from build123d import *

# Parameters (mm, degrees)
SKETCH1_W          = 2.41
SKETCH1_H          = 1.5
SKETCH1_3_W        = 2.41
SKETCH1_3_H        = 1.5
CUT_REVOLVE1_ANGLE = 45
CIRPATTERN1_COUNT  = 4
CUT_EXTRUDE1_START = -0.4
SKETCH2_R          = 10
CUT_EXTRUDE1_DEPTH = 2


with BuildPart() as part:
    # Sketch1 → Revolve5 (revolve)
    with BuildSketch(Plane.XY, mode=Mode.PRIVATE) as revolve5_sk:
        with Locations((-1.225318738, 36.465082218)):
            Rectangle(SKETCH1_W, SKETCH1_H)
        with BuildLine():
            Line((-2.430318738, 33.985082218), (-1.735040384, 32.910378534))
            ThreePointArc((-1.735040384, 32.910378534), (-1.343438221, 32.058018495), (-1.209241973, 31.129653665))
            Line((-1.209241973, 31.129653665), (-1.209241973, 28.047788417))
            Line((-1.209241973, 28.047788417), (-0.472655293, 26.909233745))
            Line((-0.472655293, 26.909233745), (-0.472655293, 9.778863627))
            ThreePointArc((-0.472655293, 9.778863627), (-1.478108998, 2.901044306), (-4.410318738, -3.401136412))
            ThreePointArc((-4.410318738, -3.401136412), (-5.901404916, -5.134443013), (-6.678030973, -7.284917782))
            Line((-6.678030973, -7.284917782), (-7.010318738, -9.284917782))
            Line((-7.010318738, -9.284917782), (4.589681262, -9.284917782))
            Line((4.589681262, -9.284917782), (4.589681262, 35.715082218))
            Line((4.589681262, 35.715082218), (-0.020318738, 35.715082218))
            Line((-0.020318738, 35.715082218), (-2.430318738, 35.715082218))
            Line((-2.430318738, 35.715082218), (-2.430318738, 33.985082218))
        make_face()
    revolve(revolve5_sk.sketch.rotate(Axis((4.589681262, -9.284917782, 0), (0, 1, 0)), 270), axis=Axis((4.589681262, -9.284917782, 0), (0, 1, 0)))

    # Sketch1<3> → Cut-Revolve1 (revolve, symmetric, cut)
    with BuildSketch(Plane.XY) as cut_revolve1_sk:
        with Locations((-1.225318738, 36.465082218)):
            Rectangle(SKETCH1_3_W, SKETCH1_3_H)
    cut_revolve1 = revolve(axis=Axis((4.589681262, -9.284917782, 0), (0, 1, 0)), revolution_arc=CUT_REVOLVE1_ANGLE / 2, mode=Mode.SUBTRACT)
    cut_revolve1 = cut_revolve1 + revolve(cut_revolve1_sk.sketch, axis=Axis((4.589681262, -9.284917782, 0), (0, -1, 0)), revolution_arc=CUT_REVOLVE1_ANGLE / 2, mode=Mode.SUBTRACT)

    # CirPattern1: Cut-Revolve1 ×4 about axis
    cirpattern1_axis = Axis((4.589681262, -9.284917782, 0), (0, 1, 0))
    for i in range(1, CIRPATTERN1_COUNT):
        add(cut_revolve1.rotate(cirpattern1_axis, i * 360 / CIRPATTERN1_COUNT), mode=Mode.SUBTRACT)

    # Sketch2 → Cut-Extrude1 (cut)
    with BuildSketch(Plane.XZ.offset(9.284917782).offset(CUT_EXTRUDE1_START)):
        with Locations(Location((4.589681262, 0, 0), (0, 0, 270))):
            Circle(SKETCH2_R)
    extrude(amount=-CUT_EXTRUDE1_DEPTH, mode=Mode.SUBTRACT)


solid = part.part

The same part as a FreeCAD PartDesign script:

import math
import FreeCAD as App
import Part
import Sketcher

V = App.Vector

doc = App.newDocument("Part")
body = doc.addObject("PartDesign::Body", "Body")

sketch1 = doc.addObject("Sketcher::SketchObject", "Sketch")
body.addObject(sketch1)
sketch1.AttachmentSupport = (doc.XY_Plane, [""])
sketch1.MapMode = "FlatFace"
sketch1.addGeometry([
    Part.LineSegment(V(-2.430319, 37.215082, 0), V(-2.430319, 33.985082, 0)),
    Part.LineSegment(V(-2.430319, 33.985082, 0), V(-1.73504, 32.910379, 0)),
    Part.ArcOfCircle(Part.Circle(V(-4.487537, 31.129654, 0), V(0, 0, 1), 3.278295), math.radians(0), math.radians(32.900803)),
    Part.LineSegment(V(-1.209242, 31.129654, 0), V(-1.209242, 28.047788, 0)),
    Part.LineSegment(V(-1.209242, 28.047788, 0), V(-0.472655, 26.909234, 0)),
    Part.LineSegment(V(-0.472655, 26.909234, 0), V(-0.472655, 9.778864, 0)),
    Part.ArcOfCircle(Part.Circle(V(-24.499289, 9.778864, 0), V(0, 0, 1), 24.026634), math.radians(-33.268136), math.radians(0)),
    Part.ArcOfCircle(Part.Circle(V(-0.444763, -8.320537, 0), V(0, 0, 1), 6.318713), math.radians(128.872474), math.radians(170.566824)),
    Part.LineSegment(V(-6.678031, -7.284918, 0), V(-7.010319, -9.284918, 0)),
    Part.LineSegment(V(-7.010319, -9.284918, 0), V(4.589681, -9.284918, 0)),
    Part.LineSegment(V(4.589681, -9.284918, 0), V(4.589681, 35.715082, 0)),
    Part.LineSegment(V(4.589681, 35.715082, 0), V(-0.020319, 35.715082, 0)),
    Part.LineSegment(V(-0.020319, 35.715082, 0), V(-0.020319, 37.215082, 0)),
    Part.LineSegment(V(-0.020319, 37.215082, 0), V(-2.430319, 37.215082, 0)),
], False)
sketch1.addGeometry(Part.LineSegment(V(4.589681, -9.284918, 0), V(4.589681, 37.215082, 0)), True)
sketch1.addConstraint([
    Sketcher.Constraint("Coincident", 0, 2, 1, 1),
    Sketcher.Constraint("Tangent", 1, 2, 2, 2),
    Sketcher.Constraint("Tangent", 2, 1, 3, 1),
    Sketcher.Constraint("Coincident", 3, 2, 4, 1),
    Sketcher.Constraint("Coincident", 4, 2, 5, 1),
    Sketcher.Constraint("Tangent", 5, 2, 6, 2),
    Sketcher.Constraint("Coincident", 6, 1, 7, 1),
    Sketcher.Constraint("Tangent", 7, 2, 8, 1),
    Sketcher.Constraint("Coincident", 8, 2, 9, 1),
    Sketcher.Constraint("Coincident", 9, 2, 10, 1),
    Sketcher.Constraint("Coincident", 10, 2, 11, 1),
    Sketcher.Constraint("Coincident", 11, 2, 12, 1),
    Sketcher.Constraint("Coincident", 12, 2, 13, 1),
    Sketcher.Constraint("Coincident", 13, 2, 0, 1),
    Sketcher.Constraint("Vertical", 0),
    Sketcher.Constraint("Vertical", 3),
    Sketcher.Constraint("Vertical", 5),
    Sketcher.Constraint("Horizontal", 9),
    Sketcher.Constraint("Vertical", 10),
    Sketcher.Constraint("Horizontal", 11),
    Sketcher.Constraint("Vertical", 12),
    Sketcher.Constraint("Horizontal", 13),
    Sketcher.Constraint("Vertical", 14),
    Sketcher.Constraint("Coincident", 14, 1, 9, 2),
    Sketcher.Constraint("Parallel", 1, 4),
    Sketcher.Constraint("Horizontal", 13, 2, 14, 2),
    Sketcher.Constraint("DistanceY", 10, 1, 10, 2, 45.0),
    Sketcher.Constraint("DistanceX", 9, 1, 9, 2, 11.6),
    Sketcher.Constraint("DistanceY", 12, 1, 12, 2, 1.5),
    Sketcher.Constraint("DistanceY", 8, 2, 7, 2, 2.0),
    Sketcher.Constraint("DistanceX", 6, 1, 9, 2, 9.0),
    Sketcher.Constraint("DistanceX", 11, 2, 11, 1, 4.61),
    Sketcher.Constraint("DistanceX", 13, 2, 13, 1, 2.41),
    Sketcher.Constraint("DistanceY", 0, 2, 0, 1, 3.23),
    Sketcher.Constraint("Distance", 1, 1.28),
    Sketcher.Constraint("DistanceY", 6, 1, 5, 2, 13.18),
    Sketcher.Constraint("Radius", 2, 3.278295),
    Sketcher.Constraint("Radius", 6, 24.026634),
    Sketcher.Constraint("Radius", 7, 6.318713),
    Sketcher.Constraint("DistanceY", 5, 2, 5, 1, 17.13037),
    Sketcher.Constraint("DistanceY", 7, 3, 6, 3, 18.099401),
    Sketcher.Constraint("DistanceX", 1, 2, 2, 1, 0.525798),
    Sketcher.Constraint("DistanceX", 6, 3, -1, 1, 24.499289),
    Sketcher.Constraint("DistanceY", -1, 1, 1, 2, 32.910379),
])
revolution = doc.addObject("PartDesign::Revolution", "Revolution")
body.addObject(revolution)
revolution.Profile = sketch1
revolution.ReferenceAxis = (sketch1, ["Axis0"])
revolution.Angle = 360

sketch2 = doc.addObject("Sketcher::SketchObject", "Sketch001")
body.addObject(sketch2)
sketch2.AttachmentSupport = (doc.XY_Plane, [""])
sketch2.MapMode = "FlatFace"
sketch2.addGeometry([
    Part.LineSegment(V(-2.430319, 37.215082, 0), V(-2.430319, 35.715082, 0)),
    Part.LineSegment(V(-2.430319, 35.715082, 0), V(-0.020319, 35.715082, 0)),
    Part.LineSegment(V(-0.020319, 35.715082, 0), V(-0.020319, 37.215082, 0)),
    Part.LineSegment(V(-0.020319, 37.215082, 0), V(-2.430319, 37.215082, 0)),
], False)
sketch2.addGeometry(Part.LineSegment(V(4.589681, 35.715082, 0), V(4.589681, 37.215082, 0)), True)
sketch2.addConstraint([
    Sketcher.Constraint("Coincident", 0, 2, 1, 1),
    Sketcher.Constraint("Coincident", 1, 2, 2, 1),
    Sketcher.Constraint("Coincident", 2, 2, 3, 1),
    Sketcher.Constraint("Coincident", 3, 2, 0, 1),
    Sketcher.Constraint("Vertical", 0),
    Sketcher.Constraint("Horizontal", 1),
    Sketcher.Constraint("Vertical", 2),
    Sketcher.Constraint("Horizontal", 3),
    Sketcher.Constraint("Vertical", 4),
    Sketcher.Constraint("Horizontal", 1, 2, 4, 1),
    Sketcher.Constraint("Horizontal", 3, 2, 4, 2),
    Sketcher.Constraint("DistanceY", 0, 2, 0, 1, 1.5),
    Sketcher.Constraint("DistanceX", 1, 1, 1, 2, 2.41),
    Sketcher.Constraint("DistanceX", 1, 2, 4, 1, 4.61),
    Sketcher.Constraint("DistanceX", 0, 2, -1, 1, 2.430319),
    Sketcher.Constraint("DistanceY", -1, 1, 0, 2, 35.715082),
])
groove = doc.addObject("PartDesign::Groove", "Groove")
body.addObject(groove)
groove.Profile = sketch2
groove.ReferenceAxis = (sketch2, ["Axis0"])
groove.Angle = 22.5

sketch3 = doc.addObject("Sketcher::SketchObject", "Sketch002")
body.addObject(sketch3)
sketch3.AttachmentSupport = (doc.XY_Plane, [""])
sketch3.MapMode = "FlatFace"
sketch3.addGeometry([
    Part.LineSegment(V(-2.430319, 37.215082, 0), V(-2.430319, 35.715082, 0)),
    Part.LineSegment(V(-2.430319, 35.715082, 0), V(-0.020319, 35.715082, 0)),
    Part.LineSegment(V(-0.020319, 35.715082, 0), V(-0.020319, 37.215082, 0)),
    Part.LineSegment(V(-0.020319, 37.215082, 0), V(-2.430319, 37.215082, 0)),
], False)
sketch3.addGeometry(Part.LineSegment(V(4.589681, 37.215082, 0), V(4.589681, 35.715082, 0)), True)
sketch3.addConstraint([
    Sketcher.Constraint("Coincident", 0, 2, 1, 1),
    Sketcher.Constraint("Coincident", 1, 2, 2, 1),
    Sketcher.Constraint("Coincident", 2, 2, 3, 1),
    Sketcher.Constraint("Coincident", 3, 2, 0, 1),
    Sketcher.Constraint("Vertical", 0),
    Sketcher.Constraint("Horizontal", 1),
    Sketcher.Constraint("Vertical", 2),
    Sketcher.Constraint("Horizontal", 3),
    Sketcher.Constraint("Vertical", 4),
    Sketcher.Constraint("Horizontal", 3, 2, 4, 1),
    Sketcher.Constraint("Horizontal", 1, 2, 4, 2),
    Sketcher.Constraint("DistanceY", 0, 2, 0, 1, 1.5),
    Sketcher.Constraint("DistanceX", 1, 1, 1, 2, 2.41),
    Sketcher.Constraint("DistanceX", 2, 2, 4, 1, 4.61),
    Sketcher.Constraint("DistanceX", 0, 2, -1, 1, 2.430319),
    Sketcher.Constraint("DistanceY", -1, 1, 0, 2, 35.715082),
])
groove2 = doc.addObject("PartDesign::Groove", "Groove001")
body.addObject(groove2)
groove2.Profile = sketch3
groove2.ReferenceAxis = (sketch3, ["Axis0"])
groove2.Angle = 22.5
doc.recompute()

datumline = doc.addObject("PartDesign::Line", "DatumLine")
body.addObject(datumline)
datumline.Placement = App.Placement(V(4.589681, 0, 0), App.Rotation(V(0, 0, 1), V(0, 1, 0)))
polarpattern = doc.addObject("PartDesign::PolarPattern", "PolarPattern")
body.addObject(polarpattern)
polarpattern.Originals = [groove, groove2]
polarpattern.Axis = (datumline, [""])
polarpattern.Angle = 360
polarpattern.Occurrences = 4
body.Tip = polarpattern

sketch4 = doc.addObject("Sketcher::SketchObject", "Sketch003")
body.addObject(sketch4)
sketch4.AttachmentSupport = (doc.XZ_Plane, [""])
sketch4.MapMode = "FlatFace"
sketch4.AttachmentOffset = App.Placement(V(0, 0, 8.884918), App.Rotation())
sketch4.addGeometry(Part.Circle(V(4.589681, 0, 0), V(0, 0, 1), 10), False)
sketch4.addConstraint([
    Sketcher.Constraint("PointOnObject", 0, 3, -1),
    Sketcher.Constraint("Diameter", 0, 20.0),
    Sketcher.Constraint("DistanceX", -1, 1, 0, 3, 4.589681),
])
pocket1 = doc.addObject("PartDesign::Pocket", "Pocket")
body.addObject(pocket1)
pocket1.Profile = sketch4
pocket1.Length = 2

doc.recompute()
